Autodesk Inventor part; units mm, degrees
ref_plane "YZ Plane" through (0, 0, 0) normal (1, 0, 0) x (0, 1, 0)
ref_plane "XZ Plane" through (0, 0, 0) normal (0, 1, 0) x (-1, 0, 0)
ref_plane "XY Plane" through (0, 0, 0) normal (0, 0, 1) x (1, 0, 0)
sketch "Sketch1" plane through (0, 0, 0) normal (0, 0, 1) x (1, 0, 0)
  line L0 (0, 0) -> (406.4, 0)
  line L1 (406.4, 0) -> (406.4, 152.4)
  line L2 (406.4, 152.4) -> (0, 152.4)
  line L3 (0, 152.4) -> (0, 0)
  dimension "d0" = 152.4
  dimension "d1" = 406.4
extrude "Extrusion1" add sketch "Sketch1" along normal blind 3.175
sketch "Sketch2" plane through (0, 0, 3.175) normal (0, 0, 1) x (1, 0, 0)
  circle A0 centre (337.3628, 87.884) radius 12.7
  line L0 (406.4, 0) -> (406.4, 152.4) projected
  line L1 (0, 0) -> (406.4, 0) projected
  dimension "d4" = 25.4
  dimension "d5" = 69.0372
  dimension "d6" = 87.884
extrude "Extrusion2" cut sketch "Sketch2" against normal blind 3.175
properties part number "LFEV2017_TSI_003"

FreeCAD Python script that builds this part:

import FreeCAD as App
import Part
import Sketcher
from FreeCAD import Vector
Q = App.Units.Quantity

doc = App.newDocument("Part")
body = doc.addObject("PartDesign::Body", "Body")

sketch1 = body.newObject("Sketcher::SketchObject", "Sketch")
sketch1.AttachmentSupport = (doc.getObject("XY_Plane"), [""])
sketch1.MapMode = "FlatFace"
sketch1.addGeometry([
    Part.LineSegment(Vector(0, 152, 0), Vector(0, 0, 0)),
    Part.LineSegment(Vector(0, 0, 0), Vector(406, 0, 0)),
    Part.LineSegment(Vector(406, 0, 0), Vector(406, 152, 0)),
    Part.LineSegment(Vector(406, 152, 0), Vector(0, 152, 0)),
], False)
sketch1.addConstraint([
    Sketcher.Constraint("Coincident", 0, 2, 1, 1),
    Sketcher.Constraint("Coincident", 1, 2, 2, 1),
    Sketcher.Constraint("Coincident", 2, 2, 3, 1),
    Sketcher.Constraint("Coincident", 3, 2, 0, 1),
    Sketcher.Constraint("Vertical", 0),
    Sketcher.Constraint("Horizontal", 1),
    Sketcher.Constraint("Vertical", 2),
    Sketcher.Constraint("Horizontal", 3),
    Sketcher.Constraint("Coincident", 0, 2, -1, 1),
    Sketcher.Constraint("DistanceX", 1, 1, 1, 2, Q("16 in")),
    Sketcher.Constraint("DistanceY", 0, 2, 0, 1, Q("6 in")),
])
pad1 = body.newObject("PartDesign::Pad", "Pad")
pad1.Profile = sketch1
pad1.Length = Q("0.125 in")

sketch2 = body.newObject("Sketcher::SketchObject", "Sketch001")
sketch2.AttachmentSupport = (doc.getObject("XY_Plane"), [""])
sketch2.MapMode = "FlatFace"
sketch2.AttachmentOffset = App.Placement(Vector(0, 0, 0.125 * 25.4), App.Rotation())
sketch2.addGeometry(Part.Circle(Vector(337, 88, 0), Vector(0, 0, 1), 13), False)
sketch2.addConstraint([
    Sketcher.Constraint("Diameter", 0, Q("1 in")),
    Sketcher.Constraint("DistanceY", -1, 1, 0, 3, Q("3.46 in")),
    Sketcher.Constraint("DistanceX", -1, 1, 0, 3, Q("13.282 in")),
])
pocket1 = body.newObject("PartDesign::Pocket", "Pocket")
pocket1.Profile = sketch2
pocket1.Length = Q("0.125 in")

doc.recompute()
